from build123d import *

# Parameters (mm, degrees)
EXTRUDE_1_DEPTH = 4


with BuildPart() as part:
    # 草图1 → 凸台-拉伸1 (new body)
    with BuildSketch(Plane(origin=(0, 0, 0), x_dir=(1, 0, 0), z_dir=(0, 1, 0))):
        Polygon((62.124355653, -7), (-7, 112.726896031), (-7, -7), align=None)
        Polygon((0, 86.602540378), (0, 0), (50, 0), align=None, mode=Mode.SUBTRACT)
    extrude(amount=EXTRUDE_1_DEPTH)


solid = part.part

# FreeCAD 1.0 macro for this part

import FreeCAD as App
import Part
import Sketcher

V = App.Vector
Q = App.Units.Quantity


def add_polygon(sketch, points):
    """Adds a closed chain of lines whose ends are joined by coincident constraints."""
    first, n = sketch.GeometryCount, len(points)
    for a, b in zip(points, points[1:] + points[:1]):
        sketch.addGeometry(Part.LineSegment(App.Vector(*a, 0), App.Vector(*b, 0)), False)
    for i in range(n):
        sketch.addConstraint(Sketcher.Constraint("Coincident", first + i, 2, first + (i + 1) % n, 1))

doc = App.newDocument("Part")
body = doc.addObject("PartDesign::Body", "Body")

# Sketch on XZ plane
sketch1 = body.newObject("Sketcher::SketchObject", "Sketch")
sketch1.AttachmentSupport = (doc.getObject("XZ_Plane"), [""])
sketch1.MapMode = "FlatFace"
add_polygon(sketch1, [(62, 7), (-7, -113), (-7, 7)])  # lines 0-2
add_polygon(sketch1, [(0, 0), (0, -87), (50, 0)])  # lines 3-5
sketch1.addConstraint(Sketcher.Constraint("Vertical", 1))
sketch1.addConstraint(Sketcher.Constraint("Horizontal", 2))
sketch1.addConstraint(Sketcher.Constraint("Vertical", 3))
sketch1.addConstraint(Sketcher.Constraint("Horizontal", 5))
sketch1.addConstraint(Sketcher.Constraint("Coincident", 5, 2, -1, 1))
sketch1.addConstraint(Sketcher.Constraint("Parallel", 0, 4))
sketch1.addConstraint(Sketcher.Constraint("DistanceX", 5, 2, 5, 1, 50.0))
sketch1.addConstraint(Sketcher.Constraint("Angle", 0, Q("-120 deg")))
sketch1.addConstraint(Sketcher.Constraint("DistanceX", 0, 2, -1, 1, 7.0))
sketch1.addConstraint(Sketcher.Constraint("DistanceY", -1, 1, 1, 2, 7.0))
sketch1.addConstraint(Sketcher.Constraint("Distance", 0, 138.248711))
pad1 = body.newObject("PartDesign::Pad", "Pad")
pad1.Profile = sketch1
pad1.Length = 4
pad1.Reversed = True

doc.recompute()
